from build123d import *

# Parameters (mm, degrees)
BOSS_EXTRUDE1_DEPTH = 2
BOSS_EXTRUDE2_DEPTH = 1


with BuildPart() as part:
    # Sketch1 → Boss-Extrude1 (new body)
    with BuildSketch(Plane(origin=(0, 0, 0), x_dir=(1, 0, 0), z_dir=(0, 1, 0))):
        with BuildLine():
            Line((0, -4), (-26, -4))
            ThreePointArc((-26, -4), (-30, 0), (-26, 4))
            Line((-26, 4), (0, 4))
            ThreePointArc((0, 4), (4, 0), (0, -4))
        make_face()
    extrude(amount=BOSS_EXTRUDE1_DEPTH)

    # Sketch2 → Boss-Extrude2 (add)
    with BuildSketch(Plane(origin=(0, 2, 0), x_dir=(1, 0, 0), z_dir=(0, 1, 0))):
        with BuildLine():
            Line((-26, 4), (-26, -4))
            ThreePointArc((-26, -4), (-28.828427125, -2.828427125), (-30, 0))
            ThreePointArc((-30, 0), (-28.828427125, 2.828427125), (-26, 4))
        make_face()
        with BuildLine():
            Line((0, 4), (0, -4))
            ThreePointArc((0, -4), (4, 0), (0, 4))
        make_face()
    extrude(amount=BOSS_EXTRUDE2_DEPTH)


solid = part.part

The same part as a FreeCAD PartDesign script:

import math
import FreeCAD as App
import Part
import Sketcher

V = App.Vector
Q = App.Units.Quantity

doc = App.newDocument("Part")
params = doc.addObject("Spreadsheet::Sheet", "Params")
for row, (alias, value) in enumerate([
    ("sketch1_radius", "4 mm"),
    ("sketch1_width", "26 mm"),
    ("pad1_length", "2 mm"),
    ("sketch2_radius", "4 mm"),
    ("pad2_length", "1 mm"),
], start=1):
    params.set(f"A{row}", alias)
    params.set(f"B{row}", "=" + value)
    params.setAlias(f"B{row}", alias)

body = doc.addObject("PartDesign::Body", "Body")

sketch1 = body.newObject("Sketcher::SketchObject", "Sketch")
sketch1.AttachmentSupport = (doc.getObject("XZ_Plane"), [""])
sketch1.MapMode = "FlatFace"
sketch1.addGeometry(Part.LineSegment(V(-26, 4, 0), V(0, 4, 0)), False)
sketch1.addGeometry(Part.ArcOfCircle(Part.Circle(V(0, 0, 0), V(0, 0, 1), 4), math.radians(-90), math.radians(90)), False)
sketch1.addGeometry(Part.LineSegment(V(0, -4, 0), V(-26, -4, 0)), False)
sketch1.addGeometry(Part.ArcOfCircle(Part.Circle(V(-26, 0, 0), V(0, 0, 1), 4), math.radians(90), math.radians(270)), False)
sketch1.addConstraint(Sketcher.Constraint("Tangent", 0, 2, 1, 2))
sketch1.addConstraint(Sketcher.Constraint("Tangent", 1, 1, 2, 1))
sketch1.addConstraint(Sketcher.Constraint("Tangent", 2, 2, 3, 2))
sketch1.addConstraint(Sketcher.Constraint("Tangent", 3, 1, 0, 1))
sketch1.addConstraint(Sketcher.Constraint("Horizontal", 0))
sketch1.addConstraint(Sketcher.Constraint("Horizontal", 2))
sketch1.addConstraint(Sketcher.Constraint("Coincident", 1, 3, -1, 1))
sketch1.addConstraint(Sketcher.Constraint("Radius", 1, Q("4 mm")))
sketch1.addConstraint(Sketcher.Constraint("DistanceX", 0, 1, 0, 2, Q("26 mm")))
sketch1.setExpression("Constraints[7]", "Params.sketch1_radius")
sketch1.setExpression("Constraints[8]", "Params.sketch1_width")
pad1 = body.newObject("PartDesign::Pad", "Pad")
pad1.Profile = sketch1
pad1.setExpression("Length", "Params.pad1_length")
pad1.Reversed = True

sketch2 = body.newObject("Sketcher::SketchObject", "Sketch001")
sketch2.AttachmentSupport = (doc.getObject("XZ_Plane"), [""])
sketch2.MapMode = "FlatFace"
sketch2.AttachmentOffset = App.Placement(V(0, 0, -2), App.Rotation())
sketch2.addGeometry(Part.LineSegment(V(-26, 4, 0), V(-26, -4, 0)), False)
sketch2.addGeometry(Part.ArcOfCircle(Part.Circle(V(-26, 0, 0), V(0, 0, 1), 4), math.radians(180), math.radians(270)), False)
sketch2.addGeometry(Part.ArcOfCircle(Part.Circle(V(-26, 0, 0), V(0, 0, 1), 4), math.radians(90), math.radians(180)), False)
sketch2.addGeometry(Part.LineSegment(V(0, -4, 0), V(0, 4, 0)), False)
sketch2.addGeometry(Part.ArcOfCircle(Part.Circle(V(0, 0, 0), V(0, 0, 1), 4), math.radians(-90), math.radians(90)), False)
sketch2.addConstraint(Sketcher.Constraint("Coincident", 0, 2, 1, 2))
sketch2.addConstraint(Sketcher.Constraint("Tangent", 1, 1, 2, 2))
sketch2.addConstraint(Sketcher.Constraint("Coincident", 2, 1, 0, 1))
sketch2.addConstraint(Sketcher.Constraint("Coincident", 3, 1, 4, 1))
sketch2.addConstraint(Sketcher.Constraint("Coincident", 4, 2, 3, 2))
sketch2.addConstraint(Sketcher.Constraint("Vertical", 0))
sketch2.addConstraint(Sketcher.Constraint("Vertical", 3))
sketch2.addConstraint(Sketcher.Constraint("Coincident", 4, 3, -1, 1))
sketch2.addConstraint(Sketcher.Constraint("Equal", 1, 2))
sketch2.addConstraint(Sketcher.Constraint("Equal", 2, 4))
sketch2.addConstraint(Sketcher.Constraint("PointOnObject", 1, 3, -1))
sketch2.addConstraint(Sketcher.Constraint("PointOnObject", 1, 1, -1))
sketch2.addConstraint(Sketcher.Constraint("PointOnObject", 3, 1, -2))
sketch2.addConstraint(Sketcher.Constraint("Vertical", 2, 3, 0, 2))
sketch2.addConstraint(Sketcher.Constraint("Radius", 1, Q("4 mm")))
sketch2.addConstraint(Sketcher.Constraint("DistanceX", 1, 3, -1, 1, Q("26 mm")))
sketch2.setExpression("Constraints[14]", "Params.sketch2_radius")
pad2 = body.newObject("PartDesign::Pad", "Pad001")
pad2.Profile = sketch2
pad2.setExpression("Length", "Params.pad2_length")
pad2.Reversed = True

doc.recompute()
